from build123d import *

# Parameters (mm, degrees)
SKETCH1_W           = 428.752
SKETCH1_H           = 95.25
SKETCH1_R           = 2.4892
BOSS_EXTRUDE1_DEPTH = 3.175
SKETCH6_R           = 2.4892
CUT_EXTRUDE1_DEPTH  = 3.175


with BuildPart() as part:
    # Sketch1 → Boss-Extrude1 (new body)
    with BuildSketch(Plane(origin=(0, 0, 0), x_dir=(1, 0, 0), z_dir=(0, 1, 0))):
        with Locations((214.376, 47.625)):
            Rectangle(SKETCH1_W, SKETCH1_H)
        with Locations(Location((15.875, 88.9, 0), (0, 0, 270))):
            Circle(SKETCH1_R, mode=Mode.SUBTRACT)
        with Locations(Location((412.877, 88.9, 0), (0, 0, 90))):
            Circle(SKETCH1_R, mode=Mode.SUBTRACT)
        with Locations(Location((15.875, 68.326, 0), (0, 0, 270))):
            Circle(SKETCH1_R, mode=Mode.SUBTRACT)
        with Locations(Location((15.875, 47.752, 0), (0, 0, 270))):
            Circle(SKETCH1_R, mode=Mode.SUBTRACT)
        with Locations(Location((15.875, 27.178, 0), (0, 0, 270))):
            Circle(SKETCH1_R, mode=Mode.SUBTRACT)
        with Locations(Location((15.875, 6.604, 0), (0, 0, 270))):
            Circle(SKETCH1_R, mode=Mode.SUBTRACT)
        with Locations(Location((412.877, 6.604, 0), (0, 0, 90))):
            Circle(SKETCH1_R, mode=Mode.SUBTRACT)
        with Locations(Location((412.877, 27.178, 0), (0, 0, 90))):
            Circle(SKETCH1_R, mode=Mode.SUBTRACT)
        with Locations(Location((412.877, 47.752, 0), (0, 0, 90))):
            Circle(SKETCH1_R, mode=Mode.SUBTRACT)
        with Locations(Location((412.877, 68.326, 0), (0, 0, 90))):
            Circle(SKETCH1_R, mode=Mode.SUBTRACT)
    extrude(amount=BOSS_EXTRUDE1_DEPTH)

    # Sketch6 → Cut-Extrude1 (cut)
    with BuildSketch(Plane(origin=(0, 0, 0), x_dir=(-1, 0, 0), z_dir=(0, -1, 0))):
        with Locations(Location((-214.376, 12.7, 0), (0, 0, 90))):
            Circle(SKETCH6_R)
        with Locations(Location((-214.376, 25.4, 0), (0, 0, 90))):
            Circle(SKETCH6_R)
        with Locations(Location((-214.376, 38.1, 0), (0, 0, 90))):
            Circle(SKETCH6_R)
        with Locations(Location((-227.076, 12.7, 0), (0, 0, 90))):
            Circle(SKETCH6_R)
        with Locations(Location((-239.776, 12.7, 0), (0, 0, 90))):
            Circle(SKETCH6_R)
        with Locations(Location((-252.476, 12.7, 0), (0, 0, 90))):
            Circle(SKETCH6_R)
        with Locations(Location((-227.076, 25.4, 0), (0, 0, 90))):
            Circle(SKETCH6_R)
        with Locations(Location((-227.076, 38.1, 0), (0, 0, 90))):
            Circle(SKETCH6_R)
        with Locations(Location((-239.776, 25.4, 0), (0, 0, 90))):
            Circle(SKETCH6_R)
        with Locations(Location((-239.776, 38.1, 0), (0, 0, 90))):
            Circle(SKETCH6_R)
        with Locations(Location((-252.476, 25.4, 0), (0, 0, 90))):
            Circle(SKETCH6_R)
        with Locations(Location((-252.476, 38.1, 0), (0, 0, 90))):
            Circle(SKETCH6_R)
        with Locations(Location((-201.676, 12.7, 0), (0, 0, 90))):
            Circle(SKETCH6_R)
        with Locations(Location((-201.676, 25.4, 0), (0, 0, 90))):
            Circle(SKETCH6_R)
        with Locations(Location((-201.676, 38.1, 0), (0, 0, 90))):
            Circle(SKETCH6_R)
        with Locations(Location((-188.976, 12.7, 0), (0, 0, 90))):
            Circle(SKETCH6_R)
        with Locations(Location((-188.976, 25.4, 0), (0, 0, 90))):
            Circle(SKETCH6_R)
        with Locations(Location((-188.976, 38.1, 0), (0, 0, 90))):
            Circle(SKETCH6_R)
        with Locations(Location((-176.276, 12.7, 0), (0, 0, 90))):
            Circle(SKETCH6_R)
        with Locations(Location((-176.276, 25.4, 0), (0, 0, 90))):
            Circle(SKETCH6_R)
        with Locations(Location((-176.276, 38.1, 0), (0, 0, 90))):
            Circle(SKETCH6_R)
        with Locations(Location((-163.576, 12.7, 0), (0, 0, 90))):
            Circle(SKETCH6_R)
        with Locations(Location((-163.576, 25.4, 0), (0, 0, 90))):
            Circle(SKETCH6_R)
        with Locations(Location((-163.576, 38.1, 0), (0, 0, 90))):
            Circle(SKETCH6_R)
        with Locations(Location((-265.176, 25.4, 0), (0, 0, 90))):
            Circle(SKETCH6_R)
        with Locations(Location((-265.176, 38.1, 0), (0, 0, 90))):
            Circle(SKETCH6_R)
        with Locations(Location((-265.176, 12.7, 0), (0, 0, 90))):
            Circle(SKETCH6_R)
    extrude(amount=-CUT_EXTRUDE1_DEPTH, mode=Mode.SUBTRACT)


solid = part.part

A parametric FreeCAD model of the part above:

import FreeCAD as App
import Part
import Sketcher
Q = App.Units.Quantity


def add_polygon(sketch, points):
    """Adds a closed chain of lines whose ends are joined by coincident constraints."""
    first, n = sketch.GeometryCount, len(points)
    for a, b in zip(points, points[1:] + points[:1]):
        sketch.addGeometry(Part.LineSegment(App.Vector(*a, 0), App.Vector(*b, 0)), False)
    for i in range(n):
        sketch.addConstraint(Sketcher.Constraint("Coincident", first + i, 2, first + (i + 1) % n, 1))

doc = App.newDocument("Part")
body = doc.addObject("PartDesign::Body", "Body")

# Sketch on XZ plane
sketch1 = body.newObject("Sketcher::SketchObject", "Sketch")
sketch1.AttachmentSupport = (doc.getObject("XZ_Plane"), [""])
sketch1.MapMode = "FlatFace"
add_polygon(sketch1, [(0, -95.2), (0, 0), (428.8, 0), (428.8, -95.2)])  # lines 0-3
sketch1.addGeometry(Part.Circle(App.Vector(15.9, -6.6, 0), App.Vector(0, 0, 1), 2.5), False)  # 4
sketch1.addGeometry(Part.Circle(App.Vector(15.9, -27.2, 0), App.Vector(0, 0, 1), 2.5), False)  # 5
sketch1.addGeometry(Part.Circle(App.Vector(412.9, -6.6, 0), App.Vector(0, 0, 1), 2.5), False)  # 6
sketch1.addGeometry(Part.Circle(App.Vector(412.9, -27.2, 0), App.Vector(0, 0, 1), 2.5), False)  # 7
sketch1.addGeometry(Part.Circle(App.Vector(15.9, -47.8, 0), App.Vector(0, 0, 1), 2.5), False)  # 8
sketch1.addGeometry(Part.Circle(App.Vector(15.9, -68.3, 0), App.Vector(0, 0, 1), 2.5), False)  # 9
sketch1.addGeometry(Part.Circle(App.Vector(15.9, -88.9, 0), App.Vector(0, 0, 1), 2.5), False)  # 10
sketch1.addGeometry(Part.Circle(App.Vector(412.9, -47.8, 0), App.Vector(0, 0, 1), 2.5), False)  # 11
sketch1.addGeometry(Part.Circle(App.Vector(412.9, -68.3, 0), App.Vector(0, 0, 1), 2.5), False)  # 12
sketch1.addGeometry(Part.Circle(App.Vector(412.9, -88.9, 0), App.Vector(0, 0, 1), 2.5), False)  # 13
sketch1.addConstraint([
    Sketcher.Constraint("Vertical", 0),
    Sketcher.Constraint("Horizontal", 1),
    Sketcher.Constraint("Vertical", 2),
    Sketcher.Constraint("Horizontal", 3),
    Sketcher.Constraint("Coincident", 0, 2, -1, 1),
    Sketcher.Constraint("Equal", 4, 5),
    Sketcher.Constraint("Equal", 5, 6),
    Sketcher.Constraint("Equal", 6, 7),
    Sketcher.Constraint("Equal", 7, 8),
    Sketcher.Constraint("Equal", 8, 9),
    Sketcher.Constraint("Equal", 9, 10),
    Sketcher.Constraint("Equal", 10, 11),
    Sketcher.Constraint("Equal", 11, 12),
    Sketcher.Constraint("Equal", 12, 13),
    Sketcher.Constraint("Horizontal", 4, 3, 6, 3),
    Sketcher.Constraint("Horizontal", 5, 3, 7, 3),
    Sketcher.Constraint("Horizontal", 8, 3, 11, 3),
    Sketcher.Constraint("Horizontal", 9, 3, 12, 3),
    Sketcher.Constraint("Horizontal", 10, 3, 13, 3),
    Sketcher.Constraint("Vertical", 4, 3, 5, 3),
    Sketcher.Constraint("Vertical", 6, 3, 7, 3),
    Sketcher.Constraint("Vertical", 5, 3, 8, 3),
    Sketcher.Constraint("Vertical", 8, 3, 9, 3),
    Sketcher.Constraint("Vertical", 9, 3, 10, 3),
    Sketcher.Constraint("Vertical", 7, 3, 11, 3),
    Sketcher.Constraint("Vertical", 11, 3, 12, 3),
    Sketcher.Constraint("Vertical", 12, 3, 13, 3),
    Sketcher.Constraint("Diameter", 4, Q("0.196 in")),
    Sketcher.Constraint("DistanceX", 1, 1, 1, 2, Q("16.88 in")),
    Sketcher.Constraint("DistanceY", 0, 1, 0, 2, Q("3.75 in")),
    Sketcher.Constraint("DistanceY", 10, 3, -1, 1, Q("3.5 in")),
    Sketcher.Constraint("DistanceY", 4, 3, -1, 1, Q("0.26 in")),
    Sketcher.Constraint("DistanceY", 5, 3, -1, 1, Q("1.07 in")),
    Sketcher.Constraint("DistanceY", 8, 3, -1, 1, Q("1.88 in")),
    Sketcher.Constraint("DistanceY", 9, 3, -1, 1, Q("2.69 in")),
    Sketcher.Constraint("DistanceX", 4, 3, 6, 3, Q("15.63 in")),
    Sketcher.Constraint("DistanceX", -1, 1, 4, 3, Q("0.625 in")),
])
pad1 = body.newObject("PartDesign::Pad", "Pad")
pad1.Profile = sketch1
pad1.Length = Q("0.125 in")
pad1.Reversed = True

# Sketch on XZ plane
sketch2 = body.newObject("Sketcher::SketchObject", "Sketch001")
sketch2.AttachmentSupport = (doc.getObject("XZ_Plane"), [""])
sketch2.MapMode = "FlatFace"
sketch2.addGeometry([
    Part.Circle(App.Vector(214.4, -12.7, 0), App.Vector(0, 0, 1), 2.5),  # 0
    Part.Circle(App.Vector(214.4, -25.4, 0), App.Vector(0, 0, 1), 2.5),  # 1
    Part.Circle(App.Vector(214.4, -38.1, 0), App.Vector(0, 0, 1), 2.5),  # 2
    Part.Circle(App.Vector(227.1, -12.7, 0), App.Vector(0, 0, 1), 2.5),  # 3
    Part.Circle(App.Vector(239.8, -12.7, 0), App.Vector(0, 0, 1), 2.5),  # 4
    Part.Circle(App.Vector(252.5, -12.7, 0), App.Vector(0, 0, 1), 2.5),  # 5
    Part.Circle(App.Vector(227.1, -25.4, 0), App.Vector(0, 0, 1), 2.5),  # 6
    Part.Circle(App.Vector(227.1, -38.1, 0), App.Vector(0, 0, 1), 2.5),  # 7
    Part.Circle(App.Vector(239.8, -25.4, 0), App.Vector(0, 0, 1), 2.5),  # 8
    Part.Circle(App.Vector(239.8, -38.1, 0), App.Vector(0, 0, 1), 2.5),  # 9
    Part.Circle(App.Vector(252.5, -25.4, 0), App.Vector(0, 0, 1), 2.5),  # 10
    Part.Circle(App.Vector(252.5, -38.1, 0), App.Vector(0, 0, 1), 2.5),  # 11
    Part.Circle(App.Vector(201.7, -12.7, 0), App.Vector(0, 0, 1), 2.5),  # 12
    Part.Circle(App.Vector(201.7, -25.4, 0), App.Vector(0, 0, 1), 2.5),  # 13
    Part.Circle(App.Vector(201.7, -38.1, 0), App.Vector(0, 0, 1), 2.5),  # 14
    Part.Circle(App.Vector(189, -12.7, 0), App.Vector(0, 0, 1), 2.5),  # 15
    Part.Circle(App.Vector(189, -25.4, 0), App.Vector(0, 0, 1), 2.5),  # 16
    Part.Circle(App.Vector(189, -38.1, 0), App.Vector(0, 0, 1), 2.5),  # 17
    Part.Circle(App.Vector(176.3, -12.7, 0), App.Vector(0, 0, 1), 2.5),  # 18
    Part.Circle(App.Vector(176.3, -25.4, 0), App.Vector(0, 0, 1), 2.5),  # 19
    Part.Circle(App.Vector(176.3, -38.1, 0), App.Vector(0, 0, 1), 2.5),  # 20
    Part.Circle(App.Vector(163.6, -12.7, 0), App.Vector(0, 0, 1), 2.5),  # 21
    Part.Circle(App.Vector(163.6, -25.4, 0), App.Vector(0, 0, 1), 2.5),  # 22
    Part.Circle(App.Vector(163.6, -38.1, 0), App.Vector(0, 0, 1), 2.5),  # 23
    Part.Circle(App.Vector(265.2, -25.4, 0), App.Vector(0, 0, 1), 2.5),  # 24
    Part.Circle(App.Vector(265.2, -38.1, 0), App.Vector(0, 0, 1), 2.5),  # 25
    Part.Circle(App.Vector(265.2, -12.7, 0), App.Vector(0, 0, 1), 2.5),  # 26
], False)
sketch2.addConstraint([
    Sketcher.Constraint("Equal", 0, 1),
    Sketcher.Constraint("Equal", 1, 2),
    Sketcher.Constraint("Equal", 2, 3),
    Sketcher.Constraint("Equal", 3, 4),
    Sketcher.Constraint("Equal", 4, 5),
    Sketcher.Constraint("Equal", 5, 6),
    Sketcher.Constraint("Equal", 6, 7),
    Sketcher.Constraint("Equal", 7, 8),
    Sketcher.Constraint("Equal", 8, 9),
    Sketcher.Constraint("Equal", 9, 10),
    Sketcher.Constraint("Equal", 10, 11),
    Sketcher.Constraint("Equal", 11, 12),
    Sketcher.Constraint("Equal", 12, 13),
    Sketcher.Constraint("Equal", 13, 14),
    Sketcher.Constraint("Equal", 14, 15),
    Sketcher.Constraint("Equal", 15, 16),
    Sketcher.Constraint("Equal", 16, 17),
    Sketcher.Constraint("Equal", 17, 18),
    Sketcher.Constraint("Equal", 18, 19),
    Sketcher.Constraint("Equal", 19, 20),
    Sketcher.Constraint("Equal", 20, 21),
    Sketcher.Constraint("Equal", 21, 22),
    Sketcher.Constraint("Equal", 22, 23),
    Sketcher.Constraint("Equal", 23, 24),
    Sketcher.Constraint("Equal", 24, 25),
    Sketcher.Constraint("Equal", 25, 26),
    Sketcher.Constraint("Horizontal", 0, 3, 3, 3),
    Sketcher.Constraint("Horizontal", 3, 3, 4, 3),
    Sketcher.Constraint("Horizontal", 4, 3, 5, 3),
    Sketcher.Constraint("Horizontal", 1, 3, 6, 3),
    Sketcher.Constraint("Horizontal", 2, 3, 7, 3),
    Sketcher.Constraint("Horizontal", 6, 3, 8, 3),
    Sketcher.Constraint("Horizontal", 7, 3, 9, 3),
    Sketcher.Constraint("Horizontal", 8, 3, 10, 3),
    Sketcher.Constraint("Horizontal", 9, 3, 11, 3),
    Sketcher.Constraint("Horizontal", 5, 3, 12, 3),
    Sketcher.Constraint("Horizontal", 10, 3, 13, 3),
    Sketcher.Constraint("Horizontal", 11, 3, 14, 3),
    Sketcher.Constraint("Horizontal", 12, 3, 15, 3),
    Sketcher.Constraint("Horizontal", 13, 3, 16, 3),
    Sketcher.Constraint("Horizontal", 14, 3, 17, 3),
    Sketcher.Constraint("Horizontal", 15, 3, 18, 3),
    Sketcher.Constraint("Horizontal", 16, 3, 19, 3),
    Sketcher.Constraint("Horizontal", 17, 3, 20, 3),
    Sketcher.Constraint("Horizontal", 18, 3, 21, 3),
    Sketcher.Constraint("Horizontal", 19, 3, 22, 3),
    Sketcher.Constraint("Horizontal", 20, 3, 23, 3),
    Sketcher.Constraint("Horizontal", 22, 3, 24, 3),
    Sketcher.Constraint("Horizontal", 23, 3, 25, 3),
    Sketcher.Constraint("Horizontal", 21, 3, 26, 3),
    Sketcher.Constraint("Vertical", 0, 3, 1, 3),
    Sketcher.Constraint("Vertical", 1, 3, 2, 3),
    Sketcher.Constraint("Vertical", 3, 3, 6, 3),
    Sketcher.Constraint("Vertical", 6, 3, 7, 3),
    Sketcher.Constraint("Vertical", 4, 3, 8, 3),
    Sketcher.Constraint("Vertical", 8, 3, 9, 3),
    Sketcher.Constraint("Vertical", 5, 3, 10, 3),
    Sketcher.Constraint("Vertical", 10, 3, 11, 3),
    Sketcher.Constraint("Vertical", 12, 3, 13, 3),
    Sketcher.Constraint("Vertical", 13, 3, 14, 3),
    Sketcher.Constraint("Vertical", 15, 3, 16, 3),
    Sketcher.Constraint("Vertical", 16, 3, 17, 3),
    Sketcher.Constraint("Vertical", 18, 3, 19, 3),
    Sketcher.Constraint("Vertical", 19, 3, 20, 3),
    Sketcher.Constraint("Vertical", 21, 3, 22, 3),
    Sketcher.Constraint("Vertical", 22, 3, 23, 3),
    Sketcher.Constraint("Vertical", 24, 3, 25, 3),
    Sketcher.Constraint("Vertical", 25, 3, 26, 3),
    Sketcher.Constraint("Diameter", 0, Q("0.196 in")),
    Sketcher.Constraint("DistanceY", 1, 3, -1, 1, Q("1 in")),
    Sketcher.Constraint("DistanceY", 2, 3, 0, 3, Q("1 in")),
    Sketcher.Constraint("DistanceX", 0, 3, 4, 3, Q("1 in")),
    Sketcher.Constraint("DistanceX", 3, 3, 5, 3, Q("1 in")),
    Sketcher.Constraint("DistanceX", 12, 3, 3, 3, Q("1 in")),
    Sketcher.Constraint("DistanceX", 15, 3, 0, 3, Q("1 in")),
    Sketcher.Constraint("DistanceX", 18, 3, 12, 3, Q("1 in")),
    Sketcher.Constraint("DistanceX", 21, 3, 15, 3, Q("1 in")),
    Sketcher.Constraint("DistanceX", 8, 3, 24, 3, Q("1 in")),
    Sketcher.Constraint("DistanceY", 0, 3, -1, 1, Q("0.5 in")),
    Sketcher.Constraint("DistanceX", 0, 3, 3, 3, Q("0.5 in")),
    Sketcher.Constraint("DistanceX", -1, 1, 0, 3, Q("8.44 in")),
])
pocket1 = body.newObject("PartDesign::Pocket", "Pocket")
pocket1.Profile = sketch2
pocket1.Length = Q("0.125 in")

doc.recompute()
